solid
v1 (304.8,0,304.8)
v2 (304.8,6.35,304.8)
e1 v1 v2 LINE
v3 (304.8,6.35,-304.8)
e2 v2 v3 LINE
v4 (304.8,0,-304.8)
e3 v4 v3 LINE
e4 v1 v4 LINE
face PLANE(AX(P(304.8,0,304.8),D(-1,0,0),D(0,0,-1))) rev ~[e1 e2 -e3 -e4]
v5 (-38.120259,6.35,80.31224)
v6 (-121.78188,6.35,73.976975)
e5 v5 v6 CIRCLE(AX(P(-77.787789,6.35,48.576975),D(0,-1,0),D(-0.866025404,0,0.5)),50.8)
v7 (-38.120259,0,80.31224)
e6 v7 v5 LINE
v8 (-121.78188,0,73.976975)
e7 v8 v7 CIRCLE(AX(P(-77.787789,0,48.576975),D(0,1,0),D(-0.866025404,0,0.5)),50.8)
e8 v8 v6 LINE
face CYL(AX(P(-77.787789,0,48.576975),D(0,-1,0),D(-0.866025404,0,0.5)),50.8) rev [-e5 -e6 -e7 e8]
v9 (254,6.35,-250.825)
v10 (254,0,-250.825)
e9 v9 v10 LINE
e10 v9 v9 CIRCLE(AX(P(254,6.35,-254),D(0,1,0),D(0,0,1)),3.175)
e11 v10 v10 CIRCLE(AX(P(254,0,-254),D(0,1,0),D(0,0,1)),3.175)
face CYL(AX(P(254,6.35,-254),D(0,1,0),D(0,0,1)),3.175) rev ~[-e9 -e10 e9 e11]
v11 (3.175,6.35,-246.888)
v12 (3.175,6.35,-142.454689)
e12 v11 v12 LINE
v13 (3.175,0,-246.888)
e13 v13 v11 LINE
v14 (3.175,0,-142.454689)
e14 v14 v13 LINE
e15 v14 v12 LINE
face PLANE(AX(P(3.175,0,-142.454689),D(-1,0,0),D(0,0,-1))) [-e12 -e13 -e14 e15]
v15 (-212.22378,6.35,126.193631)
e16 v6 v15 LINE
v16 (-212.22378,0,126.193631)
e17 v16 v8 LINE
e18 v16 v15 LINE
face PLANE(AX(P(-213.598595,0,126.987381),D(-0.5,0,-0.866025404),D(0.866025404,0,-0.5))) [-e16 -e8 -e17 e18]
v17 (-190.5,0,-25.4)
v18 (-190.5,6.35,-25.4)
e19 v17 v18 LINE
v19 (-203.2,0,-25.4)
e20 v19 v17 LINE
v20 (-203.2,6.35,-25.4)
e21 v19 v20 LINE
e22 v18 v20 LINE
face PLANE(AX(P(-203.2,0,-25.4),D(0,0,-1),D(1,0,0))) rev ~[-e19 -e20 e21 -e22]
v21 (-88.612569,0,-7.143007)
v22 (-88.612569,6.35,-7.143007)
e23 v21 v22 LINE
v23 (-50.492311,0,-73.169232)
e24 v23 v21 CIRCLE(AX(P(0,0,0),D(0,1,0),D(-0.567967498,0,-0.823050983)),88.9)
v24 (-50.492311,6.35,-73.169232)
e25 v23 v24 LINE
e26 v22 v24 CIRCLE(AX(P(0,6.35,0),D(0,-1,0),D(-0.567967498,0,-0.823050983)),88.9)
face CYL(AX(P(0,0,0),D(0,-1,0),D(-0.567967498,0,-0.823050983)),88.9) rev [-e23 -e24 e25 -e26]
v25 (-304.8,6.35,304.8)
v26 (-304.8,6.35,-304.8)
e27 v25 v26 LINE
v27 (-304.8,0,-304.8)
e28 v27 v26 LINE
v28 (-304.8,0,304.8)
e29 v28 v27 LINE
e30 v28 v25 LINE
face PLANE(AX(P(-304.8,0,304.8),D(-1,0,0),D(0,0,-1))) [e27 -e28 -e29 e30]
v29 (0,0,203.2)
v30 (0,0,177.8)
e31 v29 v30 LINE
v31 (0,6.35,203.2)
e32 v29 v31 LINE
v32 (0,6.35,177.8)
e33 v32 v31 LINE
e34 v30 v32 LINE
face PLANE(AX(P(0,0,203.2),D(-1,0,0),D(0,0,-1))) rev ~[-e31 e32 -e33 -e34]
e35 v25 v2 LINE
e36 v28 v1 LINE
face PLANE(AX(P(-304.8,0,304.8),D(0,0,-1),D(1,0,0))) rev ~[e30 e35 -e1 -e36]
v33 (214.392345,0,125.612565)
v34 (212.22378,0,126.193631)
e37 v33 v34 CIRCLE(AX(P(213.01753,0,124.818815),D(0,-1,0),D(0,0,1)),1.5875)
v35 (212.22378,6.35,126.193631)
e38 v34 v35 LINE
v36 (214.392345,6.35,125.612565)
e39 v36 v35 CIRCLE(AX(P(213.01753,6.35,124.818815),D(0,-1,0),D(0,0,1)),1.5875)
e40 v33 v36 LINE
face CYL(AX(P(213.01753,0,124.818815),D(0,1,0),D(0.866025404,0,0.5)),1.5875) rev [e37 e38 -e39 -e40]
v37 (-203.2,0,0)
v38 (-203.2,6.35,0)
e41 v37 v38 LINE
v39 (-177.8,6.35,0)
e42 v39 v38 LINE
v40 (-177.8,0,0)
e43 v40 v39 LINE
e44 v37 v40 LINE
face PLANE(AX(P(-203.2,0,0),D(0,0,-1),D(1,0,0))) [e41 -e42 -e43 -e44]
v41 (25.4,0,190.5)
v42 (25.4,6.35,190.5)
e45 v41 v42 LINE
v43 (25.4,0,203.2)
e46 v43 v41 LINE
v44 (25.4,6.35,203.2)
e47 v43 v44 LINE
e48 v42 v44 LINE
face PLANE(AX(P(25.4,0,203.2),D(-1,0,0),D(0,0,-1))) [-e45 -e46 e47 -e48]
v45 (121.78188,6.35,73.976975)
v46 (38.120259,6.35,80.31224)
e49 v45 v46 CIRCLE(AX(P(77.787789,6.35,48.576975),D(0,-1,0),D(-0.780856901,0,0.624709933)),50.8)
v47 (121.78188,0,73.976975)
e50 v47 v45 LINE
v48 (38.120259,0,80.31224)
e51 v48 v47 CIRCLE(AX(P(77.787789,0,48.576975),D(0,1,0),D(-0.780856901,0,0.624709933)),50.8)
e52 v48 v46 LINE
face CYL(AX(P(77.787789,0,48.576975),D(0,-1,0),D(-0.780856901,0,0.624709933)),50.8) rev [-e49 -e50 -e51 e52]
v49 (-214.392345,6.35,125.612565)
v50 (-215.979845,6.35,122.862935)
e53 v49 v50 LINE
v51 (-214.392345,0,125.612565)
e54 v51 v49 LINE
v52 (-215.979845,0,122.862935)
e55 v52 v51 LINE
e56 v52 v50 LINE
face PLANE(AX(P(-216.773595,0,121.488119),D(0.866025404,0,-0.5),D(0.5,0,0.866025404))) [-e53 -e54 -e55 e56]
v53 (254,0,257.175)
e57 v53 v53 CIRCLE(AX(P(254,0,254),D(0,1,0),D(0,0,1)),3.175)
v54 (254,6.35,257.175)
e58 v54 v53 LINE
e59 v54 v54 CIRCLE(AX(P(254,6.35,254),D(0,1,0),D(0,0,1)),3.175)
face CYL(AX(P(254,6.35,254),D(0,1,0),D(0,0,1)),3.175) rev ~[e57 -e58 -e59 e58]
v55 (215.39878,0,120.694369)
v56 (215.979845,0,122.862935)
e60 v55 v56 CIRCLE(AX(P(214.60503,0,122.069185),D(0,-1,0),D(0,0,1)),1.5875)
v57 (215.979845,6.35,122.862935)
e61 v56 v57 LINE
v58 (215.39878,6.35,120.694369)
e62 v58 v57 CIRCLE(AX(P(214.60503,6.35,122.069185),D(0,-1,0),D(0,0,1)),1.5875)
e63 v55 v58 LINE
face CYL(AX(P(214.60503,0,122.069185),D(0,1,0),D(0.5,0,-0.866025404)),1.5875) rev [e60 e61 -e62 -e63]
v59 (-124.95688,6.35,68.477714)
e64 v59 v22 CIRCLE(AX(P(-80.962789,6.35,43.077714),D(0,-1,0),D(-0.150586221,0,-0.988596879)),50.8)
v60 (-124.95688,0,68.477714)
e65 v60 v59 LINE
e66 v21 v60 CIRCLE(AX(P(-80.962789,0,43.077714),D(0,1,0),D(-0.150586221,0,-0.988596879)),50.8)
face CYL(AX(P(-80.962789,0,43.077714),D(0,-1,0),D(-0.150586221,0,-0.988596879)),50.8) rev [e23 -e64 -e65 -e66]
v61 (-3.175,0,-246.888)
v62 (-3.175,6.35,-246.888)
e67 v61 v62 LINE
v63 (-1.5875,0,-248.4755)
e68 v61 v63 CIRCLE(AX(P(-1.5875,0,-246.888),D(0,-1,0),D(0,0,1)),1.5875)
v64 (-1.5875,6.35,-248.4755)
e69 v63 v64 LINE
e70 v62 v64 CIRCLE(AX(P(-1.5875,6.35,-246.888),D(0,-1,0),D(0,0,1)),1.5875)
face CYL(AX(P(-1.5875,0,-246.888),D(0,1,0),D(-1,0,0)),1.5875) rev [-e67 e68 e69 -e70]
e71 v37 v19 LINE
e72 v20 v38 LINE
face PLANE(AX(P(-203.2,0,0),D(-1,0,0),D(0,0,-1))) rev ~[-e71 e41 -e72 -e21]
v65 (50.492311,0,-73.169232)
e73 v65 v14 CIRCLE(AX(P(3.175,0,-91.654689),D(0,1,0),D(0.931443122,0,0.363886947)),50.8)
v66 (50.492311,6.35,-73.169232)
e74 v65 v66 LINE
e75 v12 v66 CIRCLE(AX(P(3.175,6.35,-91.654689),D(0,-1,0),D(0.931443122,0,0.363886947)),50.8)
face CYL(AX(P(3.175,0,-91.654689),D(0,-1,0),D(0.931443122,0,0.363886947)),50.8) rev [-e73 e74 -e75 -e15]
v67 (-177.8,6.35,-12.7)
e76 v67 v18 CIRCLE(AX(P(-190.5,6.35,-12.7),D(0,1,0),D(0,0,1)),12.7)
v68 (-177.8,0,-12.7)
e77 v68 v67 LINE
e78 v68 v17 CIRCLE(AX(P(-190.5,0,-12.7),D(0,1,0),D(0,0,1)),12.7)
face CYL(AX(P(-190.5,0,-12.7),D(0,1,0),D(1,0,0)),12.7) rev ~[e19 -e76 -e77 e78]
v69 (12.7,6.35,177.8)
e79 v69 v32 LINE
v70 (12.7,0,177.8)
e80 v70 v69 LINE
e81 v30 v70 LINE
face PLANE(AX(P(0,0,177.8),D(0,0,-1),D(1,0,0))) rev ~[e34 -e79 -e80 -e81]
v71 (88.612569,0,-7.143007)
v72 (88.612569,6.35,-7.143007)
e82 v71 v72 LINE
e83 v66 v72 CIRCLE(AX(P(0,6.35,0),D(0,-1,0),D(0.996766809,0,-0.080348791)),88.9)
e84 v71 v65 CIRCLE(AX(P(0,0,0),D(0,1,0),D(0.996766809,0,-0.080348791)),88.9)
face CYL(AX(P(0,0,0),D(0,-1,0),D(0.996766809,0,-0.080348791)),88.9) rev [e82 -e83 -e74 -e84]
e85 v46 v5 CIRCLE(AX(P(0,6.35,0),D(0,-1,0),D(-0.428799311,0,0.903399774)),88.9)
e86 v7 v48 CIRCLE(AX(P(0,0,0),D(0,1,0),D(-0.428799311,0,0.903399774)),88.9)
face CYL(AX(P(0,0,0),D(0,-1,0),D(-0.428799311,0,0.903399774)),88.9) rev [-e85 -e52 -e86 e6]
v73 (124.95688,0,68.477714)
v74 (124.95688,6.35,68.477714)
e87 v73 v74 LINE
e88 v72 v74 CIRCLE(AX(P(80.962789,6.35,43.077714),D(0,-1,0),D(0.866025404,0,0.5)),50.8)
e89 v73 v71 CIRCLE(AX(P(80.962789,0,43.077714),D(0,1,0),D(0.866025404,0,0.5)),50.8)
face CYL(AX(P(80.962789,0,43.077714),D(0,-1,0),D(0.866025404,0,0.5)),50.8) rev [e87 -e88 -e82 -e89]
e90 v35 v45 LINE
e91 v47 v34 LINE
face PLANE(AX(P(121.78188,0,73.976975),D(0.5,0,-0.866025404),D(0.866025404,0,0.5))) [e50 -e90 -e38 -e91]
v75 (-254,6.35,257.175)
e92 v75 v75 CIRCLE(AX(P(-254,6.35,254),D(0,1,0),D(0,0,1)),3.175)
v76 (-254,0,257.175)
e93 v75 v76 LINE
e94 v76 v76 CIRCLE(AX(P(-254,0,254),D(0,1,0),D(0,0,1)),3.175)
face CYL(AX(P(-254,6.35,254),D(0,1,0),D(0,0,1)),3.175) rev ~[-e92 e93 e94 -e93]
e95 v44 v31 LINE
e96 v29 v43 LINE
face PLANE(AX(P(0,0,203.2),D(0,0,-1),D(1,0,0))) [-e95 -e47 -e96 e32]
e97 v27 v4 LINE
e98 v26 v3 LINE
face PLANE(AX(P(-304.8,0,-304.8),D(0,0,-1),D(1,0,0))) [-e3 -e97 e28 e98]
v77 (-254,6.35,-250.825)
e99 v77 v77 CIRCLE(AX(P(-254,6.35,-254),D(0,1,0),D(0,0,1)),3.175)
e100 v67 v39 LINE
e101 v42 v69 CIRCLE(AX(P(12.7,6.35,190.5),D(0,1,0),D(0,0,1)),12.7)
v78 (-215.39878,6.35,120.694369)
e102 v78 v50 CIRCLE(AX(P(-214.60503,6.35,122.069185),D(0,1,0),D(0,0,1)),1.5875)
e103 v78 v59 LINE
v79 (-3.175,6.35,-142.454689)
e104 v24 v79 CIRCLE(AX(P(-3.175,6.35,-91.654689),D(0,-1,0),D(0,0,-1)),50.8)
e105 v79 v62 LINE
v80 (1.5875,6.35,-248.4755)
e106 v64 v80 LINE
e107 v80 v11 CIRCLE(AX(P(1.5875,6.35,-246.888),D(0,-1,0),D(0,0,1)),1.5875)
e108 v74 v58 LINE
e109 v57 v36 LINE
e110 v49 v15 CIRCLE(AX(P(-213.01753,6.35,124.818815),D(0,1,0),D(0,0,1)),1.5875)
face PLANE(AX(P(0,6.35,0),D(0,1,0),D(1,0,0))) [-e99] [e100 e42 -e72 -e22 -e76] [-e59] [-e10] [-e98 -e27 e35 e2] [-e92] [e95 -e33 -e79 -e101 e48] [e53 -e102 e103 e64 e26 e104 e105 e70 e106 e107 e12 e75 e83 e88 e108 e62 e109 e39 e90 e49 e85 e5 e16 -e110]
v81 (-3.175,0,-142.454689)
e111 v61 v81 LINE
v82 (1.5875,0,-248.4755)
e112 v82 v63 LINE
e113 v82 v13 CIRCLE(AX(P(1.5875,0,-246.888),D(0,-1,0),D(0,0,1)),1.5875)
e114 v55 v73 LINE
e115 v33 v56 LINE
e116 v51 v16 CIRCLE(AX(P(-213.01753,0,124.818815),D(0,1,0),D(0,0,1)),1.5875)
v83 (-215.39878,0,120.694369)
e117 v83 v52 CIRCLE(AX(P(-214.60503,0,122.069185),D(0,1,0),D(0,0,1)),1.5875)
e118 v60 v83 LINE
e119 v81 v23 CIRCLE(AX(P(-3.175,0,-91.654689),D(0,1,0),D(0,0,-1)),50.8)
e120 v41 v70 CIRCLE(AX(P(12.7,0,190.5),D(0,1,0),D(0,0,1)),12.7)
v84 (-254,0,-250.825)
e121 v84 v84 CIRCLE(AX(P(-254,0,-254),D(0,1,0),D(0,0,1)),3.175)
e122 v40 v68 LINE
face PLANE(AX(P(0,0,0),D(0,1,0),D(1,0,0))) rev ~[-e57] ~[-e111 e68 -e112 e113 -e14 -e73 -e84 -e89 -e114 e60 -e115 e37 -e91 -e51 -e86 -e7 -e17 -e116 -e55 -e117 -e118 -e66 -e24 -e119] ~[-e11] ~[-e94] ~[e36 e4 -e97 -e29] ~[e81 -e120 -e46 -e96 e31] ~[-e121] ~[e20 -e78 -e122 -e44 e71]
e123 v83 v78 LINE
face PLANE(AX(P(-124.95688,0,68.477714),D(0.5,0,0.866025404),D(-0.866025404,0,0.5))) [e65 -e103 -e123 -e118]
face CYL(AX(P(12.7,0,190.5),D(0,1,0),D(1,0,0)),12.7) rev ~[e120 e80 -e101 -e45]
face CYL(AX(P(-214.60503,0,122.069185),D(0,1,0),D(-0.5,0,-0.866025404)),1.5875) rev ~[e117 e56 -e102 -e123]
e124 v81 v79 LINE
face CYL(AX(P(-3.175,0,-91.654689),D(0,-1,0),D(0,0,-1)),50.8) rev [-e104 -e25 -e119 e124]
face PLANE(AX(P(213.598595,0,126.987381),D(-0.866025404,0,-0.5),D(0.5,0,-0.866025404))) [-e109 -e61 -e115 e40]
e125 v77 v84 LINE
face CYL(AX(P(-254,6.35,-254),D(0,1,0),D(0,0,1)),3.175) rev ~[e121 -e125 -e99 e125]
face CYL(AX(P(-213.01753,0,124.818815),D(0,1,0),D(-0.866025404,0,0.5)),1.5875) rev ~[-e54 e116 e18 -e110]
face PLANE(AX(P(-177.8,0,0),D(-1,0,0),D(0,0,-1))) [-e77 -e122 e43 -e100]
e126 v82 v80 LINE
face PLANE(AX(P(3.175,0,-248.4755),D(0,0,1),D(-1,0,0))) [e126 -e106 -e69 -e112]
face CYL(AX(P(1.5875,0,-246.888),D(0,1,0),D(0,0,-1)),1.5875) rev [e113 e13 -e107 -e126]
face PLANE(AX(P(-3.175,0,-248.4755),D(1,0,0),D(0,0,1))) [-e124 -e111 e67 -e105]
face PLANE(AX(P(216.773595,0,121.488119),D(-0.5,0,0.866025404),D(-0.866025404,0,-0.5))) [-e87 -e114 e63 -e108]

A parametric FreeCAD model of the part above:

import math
import FreeCAD as App
import Part
import Sketcher
Q = App.Units.Quantity


def edges_at(feature, points):
    """Names of the edges that pass closest to the given points."""
    edges = feature.Shape.Edges
    near = lambda p: min(range(len(edges)), key=lambda i: edges[i].distToShape(Part.Vertex(*p))[0])
    return sorted({f"Edge{near(p) + 1}" for p in points})


def add_polygon(sketch, points):
    """Adds a closed chain of lines whose ends are joined by coincident constraints."""
    first, n = sketch.GeometryCount, len(points)
    for a, b in zip(points, points[1:] + points[:1]):
        sketch.addGeometry(Part.LineSegment(App.Vector(*a, 0), App.Vector(*b, 0)), False)
    for i in range(n):
        sketch.addConstraint(Sketcher.Constraint("Coincident", first + i, 2, first + (i + 1) % n, 1))

doc = App.newDocument("Part")
body = doc.addObject("PartDesign::Body", "Body")

sketch1 = body.newObject("Sketcher::SketchObject", "Sketch")
sketch1.AttachmentSupport = (doc.getObject("XZ_Plane"), [""])
sketch1.MapMode = "FlatFace"
add_polygon(sketch1, [(-305, -305), (-305, 305), (305, 305), (305, -305)])
sketch1.addConstraint(Sketcher.Constraint("Vertical", 0))
sketch1.addConstraint(Sketcher.Constraint("Horizontal", 1))
sketch1.addConstraint(Sketcher.Constraint("Vertical", 2))
sketch1.addConstraint(Sketcher.Constraint("Horizontal", 3))
sketch1.addConstraint(Sketcher.Constraint("Symmetric", 0, 2, 2, 2, -1, 1))
sketch1.addConstraint(Sketcher.Constraint("Equal", 3, 0))
sketch1.addConstraint(Sketcher.Constraint("DistanceX", 1, 1, 1, 2, Q("24 in")))
pad1 = body.newObject("PartDesign::Pad", "Pad")
pad1.Profile = sketch1
pad1.Length = Q("0.25 in")
pad1.Reversed = True

sketch2 = body.newObject("Sketcher::SketchObject", "Sketch001")
sketch2.AttachmentSupport = (doc.getObject("XZ_Plane"), [""])
sketch2.MapMode = "FlatFace"
sketch2.addGeometry(Part.LineSegment(App.Vector(-3, -248, 0), App.Vector(-3, -142, 0)), False)
sketch2.addGeometry(Part.ArcOfCircle(Part.Circle(App.Vector(-3, -92, 0), App.Vector(0, 0, 1), 51), math.radians(159), math.radians(270)), False)
sketch2.addGeometry(Part.ArcOfCircle(Part.Circle(App.Vector(0, 0, 0), App.Vector(0, 0, 1), 89), math.radians(-175), math.radians(-125)), False)
sketch2.addGeometry(Part.ArcOfCircle(Part.Circle(App.Vector(-81, 43, 0), App.Vector(0, 0, 1), 51), math.radians(150), math.radians(261)), False)
sketch2.addGeometry(Part.LineSegment(App.Vector(-125, 68, 0), App.Vector(-217, 121, 0)), False)
sketch2.addGeometry(Part.LineSegment(App.Vector(-217, 121, 0), App.Vector(-214, 127, 0)), False)
sketch2.addGeometry(Part.LineSegment(App.Vector(-214, 127, 0), App.Vector(-122, 74, 0)), False)
sketch2.addGeometry(Part.ArcOfCircle(Part.Circle(App.Vector(-78, 49, 0), App.Vector(0, 0, 1), 51), math.radians(39), math.radians(150)), False)
sketch2.addGeometry(Part.ArcOfCircle(Part.Circle(App.Vector(0, 0, 0), App.Vector(0, 0, 1), 89), math.radians(65), math.radians(115)), False)
sketch2.addGeometry(Part.ArcOfCircle(Part.Circle(App.Vector(78, 49, 0), App.Vector(0, 0, 1), 51), math.radians(30), math.radians(141)), False)
sketch2.addGeometry(Part.LineSegment(App.Vector(122, 74, 0), App.Vector(214, 127, 0)), False)
sketch2.addGeometry(Part.LineSegment(App.Vector(214, 127, 0), App.Vector(217, 121, 0)), False)
sketch2.addGeometry(Part.LineSegment(App.Vector(217, 121, 0), App.Vector(125, 68, 0)), False)
sketch2.addGeometry(Part.ArcOfCircle(Part.Circle(App.Vector(81, 43, 0), App.Vector(0, 0, 1), 51), math.radians(-81), math.radians(30)), False)
sketch2.addGeometry(Part.ArcOfCircle(Part.Circle(App.Vector(0, 0, 0), App.Vector(0, 0, 1), 89), math.radians(-55), math.radians(-5)), False)
sketch2.addGeometry(Part.ArcOfCircle(Part.Circle(App.Vector(3, -92, 0), App.Vector(0, 0, 1), 51), math.radians(-90), math.radians(21)), False)
sketch2.addGeometry(Part.LineSegment(App.Vector(3, -142, 0), App.Vector(3, -248, 0)), False)
sketch2.addGeometry(Part.LineSegment(App.Vector(3, -248, 0), App.Vector(-3, -248, 0)), False)
sketch2.addConstraint(Sketcher.Constraint("Coincident", 0, 2, 1, 2))
sketch2.addConstraint(Sketcher.Constraint("Coincident", 1, 1, 2, 2))
sketch2.addConstraint(Sketcher.Constraint("Coincident", 2, 1, 3, 2))
sketch2.addConstraint(Sketcher.Constraint("Coincident", 3, 1, 4, 1))
sketch2.addConstraint(Sketcher.Constraint("Coincident", 4, 2, 5, 1))
sketch2.addConstraint(Sketcher.Constraint("Coincident", 5, 2, 6, 1))
sketch2.addConstraint(Sketcher.Constraint("Coincident", 6, 2, 7, 2))
sketch2.addConstraint(Sketcher.Constraint("Coincident", 7, 1, 8, 2))
sketch2.addConstraint(Sketcher.Constraint("Coincident", 8, 1, 9, 2))
sketch2.addConstraint(Sketcher.Constraint("Coincident", 9, 1, 10, 1))
sketch2.addConstraint(Sketcher.Constraint("Coincident", 10, 2, 11, 1))
sketch2.addConstraint(Sketcher.Constraint("Coincident", 11, 2, 12, 1))
sketch2.addConstraint(Sketcher.Constraint("Coincident", 12, 2, 13, 2))
sketch2.addConstraint(Sketcher.Constraint("Coincident", 13, 1, 14, 2))
sketch2.addConstraint(Sketcher.Constraint("Coincident", 14, 1, 15, 2))
sketch2.addConstraint(Sketcher.Constraint("Coincident", 15, 1, 16, 1))
sketch2.addConstraint(Sketcher.Constraint("Coincident", 16, 2, 17, 1))
sketch2.addConstraint(Sketcher.Constraint("Coincident", 17, 2, 0, 1))
sketch2.addConstraint(Sketcher.Constraint("Vertical", 0))
sketch2.addConstraint(Sketcher.Constraint("Vertical", 16))
sketch2.addConstraint(Sketcher.Constraint("Horizontal", 17))
sketch2.addConstraint(Sketcher.Constraint("Coincident", 2, 3, -1, 1))
sketch2.addConstraint(Sketcher.Constraint("Coincident", 8, 3, -1, 1))
sketch2.addConstraint(Sketcher.Constraint("Coincident", 14, 3, -1, 1))
sketch2.addConstraint(Sketcher.Constraint("Equal", 1, 3))
sketch2.addConstraint(Sketcher.Constraint("Equal", 3, 7))
sketch2.addConstraint(Sketcher.Constraint("Equal", 2, 8))
sketch2.addConstraint(Sketcher.Constraint("Equal", 7, 9))
sketch2.addConstraint(Sketcher.Constraint("Equal", 9, 13))
sketch2.addConstraint(Sketcher.Constraint("Equal", 8, 14))
sketch2.addConstraint(Sketcher.Constraint("Equal", 13, 15))
sketch2.addConstraint(Sketcher.Constraint("Symmetric", 7, 3, 9, 3, -2))
sketch2.addConstraint(Sketcher.Constraint("Symmetric", 3, 3, 13, 3, -2))
sketch2.addConstraint(Sketcher.Constraint("Symmetric", 1, 3, 15, 3, -2))
sketch2.addConstraint(Sketcher.Constraint("Symmetric", 5, 2, 10, 2, -2))
sketch2.addConstraint(Sketcher.Constraint("Symmetric", 4, 2, 11, 2, -2))
sketch2.addConstraint(Sketcher.Constraint("Perpendicular", 4, 5))
sketch2.addConstraint(Sketcher.Constraint("Perpendicular", 5, 6))
sketch2.addConstraint(Sketcher.Constraint("Perpendicular", 10, 11))
sketch2.addConstraint(Sketcher.Constraint("Perpendicular", 11, 12))
sketch2.addConstraint(Sketcher.Constraint("Vertical", 1, 3, 0, 2))
sketch2.addConstraint(Sketcher.Constraint("Equal", 4, 6))
sketch2.addConstraint(Sketcher.Constraint("Radius", 1, Q("2 in")))
sketch2.addConstraint(Sketcher.Constraint("Radius", 2, Q("3.5 in")))
sketch2.addConstraint(Sketcher.Constraint("Angle", 4, Q("150 deg")))
sketch2.addConstraint(Sketcher.Constraint("DistanceY", 3, 3, 3, 1, Q("1 in")))
sketch2.addConstraint(Sketcher.Constraint("DistanceY", 7, 3, 6, 2, Q("1 in")))
sketch2.addConstraint(Sketcher.Constraint("DistanceX", 17, 2, 17, 1, Q("0.25 in")))
sketch2.addConstraint(Sketcher.Constraint("Distance", 5, Q("0.25 in")))
sketch2.addConstraint(Sketcher.Constraint("DistanceX", 1, 3, 15, 3, Q("0.25 in")))
sketch2.addConstraint(Sketcher.Constraint("DistanceY", 16, 2, -1, 1, Q("9.7825 in")))
sketch2.addConstraint(Sketcher.Constraint("DistanceY", 13, 1, 9, 3, Q("2.1937001 in")))
sketch2.addConstraint(Sketcher.Constraint("DistanceY", 0, 1, 0, 2, 106.020811))
sketch2.addConstraint(Sketcher.Constraint("Distance", 4, 106.020811))
sketch2.addConstraint(Sketcher.Constraint("DistanceX", 3, 3, -1, 1, 80.962789))
pocket1 = body.newObject("PartDesign::Pocket", "Pocket")
pocket1.Profile = sketch2
pocket1.Type = "ThroughAll"

sketch3 = body.newObject("Sketcher::SketchObject", "Sketch002")
sketch3.AttachmentSupport = (doc.getObject("XZ_Plane"), [""])
sketch3.MapMode = "FlatFace"
add_polygon(sketch3, [(0, 178), (0, 203), (25, 203), (25, 178)])
add_polygon(sketch3, [(-203, -25), (-203, 0), (-178, 0), (-178, -25)])
sketch3.addConstraint(Sketcher.Constraint("Vertical", 0))
sketch3.addConstraint(Sketcher.Constraint("Horizontal", 1))
sketch3.addConstraint(Sketcher.Constraint("Vertical", 2))
sketch3.addConstraint(Sketcher.Constraint("Horizontal", 3))
sketch3.addConstraint(Sketcher.Constraint("Vertical", 4))
sketch3.addConstraint(Sketcher.Constraint("Horizontal", 5))
sketch3.addConstraint(Sketcher.Constraint("Vertical", 6))
sketch3.addConstraint(Sketcher.Constraint("Horizontal", 7))
sketch3.addConstraint(Sketcher.Constraint("PointOnObject", 0, 2, -2))
sketch3.addConstraint(Sketcher.Constraint("PointOnObject", 4, 2, -1))
sketch3.addConstraint(Sketcher.Constraint("Equal", 3, 5))
sketch3.addConstraint(Sketcher.Constraint("Equal", 7, 0))
sketch3.addConstraint(Sketcher.Constraint("Equal", 2, 4))
sketch3.addConstraint(Sketcher.Constraint("DistanceX", 1, 1, 1, 2, Q("1 in")))
sketch3.addConstraint(Sketcher.Constraint("DistanceY", -1, 1, 0, 2, Q("8 in")))
sketch3.addConstraint(Sketcher.Constraint("DistanceX", 4, 2, -1, 1, Q("8 in")))
pocket2 = body.newObject("PartDesign::Pocket", "Pocket001")
pocket2.Profile = sketch3
pocket2.Type = "ThroughAll"
doc.recompute()

fillet = body.newObject("PartDesign::Fillet", "Fillet")
fillet.Base = (pocket2, edges_at(pocket2, [(-177.8, 3.175, -25.4)]))
fillet.Radius = Q("0.5 in")
doc.recompute()

fillet2 = body.newObject("PartDesign::Fillet", "Fillet001")
fillet2.Base = (fillet, edges_at(fillet, [(25.4, 3.175, 177.8)]))
fillet2.Radius = Q("0.5 in")

sketch4 = body.newObject("Sketcher::SketchObject", "Sketch003")
sketch4.AttachmentSupport = (doc.getObject("XZ_Plane"), [""])
sketch4.MapMode = "FlatFace"
sketch4.AttachmentOffset = App.Placement(App.Vector(0, 0, -0.25 * 25.4), App.Rotation())
sketch4.addGeometry(Part.Circle(App.Vector(-254, -254, 0), App.Vector(0, 0, 1), 3.2), False)
sketch4.addGeometry(Part.Circle(App.Vector(254, -254, 0), App.Vector(0, 0, 1), 3.2), False)
sketch4.addGeometry(Part.Circle(App.Vector(254, 254, 0), App.Vector(0, 0, 1), 3.2), False)
sketch4.addGeometry(Part.Circle(App.Vector(-254, 254, 0), App.Vector(0, 0, 1), 3.2), False)
sketch4.addConstraint(Sketcher.Constraint("Equal", 0, 1))
sketch4.addConstraint(Sketcher.Constraint("Equal", 1, 2))
sketch4.addConstraint(Sketcher.Constraint("Equal", 2, 3))
sketch4.addConstraint(Sketcher.Constraint("Symmetric", 0, 3, 2, 3, -1, 1))
sketch4.addConstraint(Sketcher.Constraint("Symmetric", 1, 3, 3, 3, -1, 1))
sketch4.addConstraint(Sketcher.Constraint("Symmetric", 0, 3, 1, 3, -2))
sketch4.addConstraint(Sketcher.Constraint("Diameter", 0, Q("0.25 in")))
sketch4.addConstraint(Sketcher.Constraint("DistanceX", 0, 3, -1, 1, Q("10 in")))
sketch4.addConstraint(Sketcher.Constraint("DistanceY", 0, 3, -1, 1, Q("10 in")))
pocket3 = body.newObject("PartDesign::Pocket", "Pocket002")
pocket3.Profile = sketch4
pocket3.Type = "ThroughAll"
pocket3.Reversed = True
doc.recompute()

fillet3 = body.newObject("PartDesign::Fillet", "Fillet002")
fillet3.Base = (pocket3, edges_at(pocket3, [
    (3.175, 3.175, -248.476),
    (-3.175, 3.175, -248.476),
    (-216.774, 3.175, 121.488),
    (-213.599, 3.175, 126.987),
    (213.599, 3.175, 126.987),
    (216.774, 3.175, 121.488),
]))
fillet3.Radius = Q("0.0625 in")

doc.recompute()
